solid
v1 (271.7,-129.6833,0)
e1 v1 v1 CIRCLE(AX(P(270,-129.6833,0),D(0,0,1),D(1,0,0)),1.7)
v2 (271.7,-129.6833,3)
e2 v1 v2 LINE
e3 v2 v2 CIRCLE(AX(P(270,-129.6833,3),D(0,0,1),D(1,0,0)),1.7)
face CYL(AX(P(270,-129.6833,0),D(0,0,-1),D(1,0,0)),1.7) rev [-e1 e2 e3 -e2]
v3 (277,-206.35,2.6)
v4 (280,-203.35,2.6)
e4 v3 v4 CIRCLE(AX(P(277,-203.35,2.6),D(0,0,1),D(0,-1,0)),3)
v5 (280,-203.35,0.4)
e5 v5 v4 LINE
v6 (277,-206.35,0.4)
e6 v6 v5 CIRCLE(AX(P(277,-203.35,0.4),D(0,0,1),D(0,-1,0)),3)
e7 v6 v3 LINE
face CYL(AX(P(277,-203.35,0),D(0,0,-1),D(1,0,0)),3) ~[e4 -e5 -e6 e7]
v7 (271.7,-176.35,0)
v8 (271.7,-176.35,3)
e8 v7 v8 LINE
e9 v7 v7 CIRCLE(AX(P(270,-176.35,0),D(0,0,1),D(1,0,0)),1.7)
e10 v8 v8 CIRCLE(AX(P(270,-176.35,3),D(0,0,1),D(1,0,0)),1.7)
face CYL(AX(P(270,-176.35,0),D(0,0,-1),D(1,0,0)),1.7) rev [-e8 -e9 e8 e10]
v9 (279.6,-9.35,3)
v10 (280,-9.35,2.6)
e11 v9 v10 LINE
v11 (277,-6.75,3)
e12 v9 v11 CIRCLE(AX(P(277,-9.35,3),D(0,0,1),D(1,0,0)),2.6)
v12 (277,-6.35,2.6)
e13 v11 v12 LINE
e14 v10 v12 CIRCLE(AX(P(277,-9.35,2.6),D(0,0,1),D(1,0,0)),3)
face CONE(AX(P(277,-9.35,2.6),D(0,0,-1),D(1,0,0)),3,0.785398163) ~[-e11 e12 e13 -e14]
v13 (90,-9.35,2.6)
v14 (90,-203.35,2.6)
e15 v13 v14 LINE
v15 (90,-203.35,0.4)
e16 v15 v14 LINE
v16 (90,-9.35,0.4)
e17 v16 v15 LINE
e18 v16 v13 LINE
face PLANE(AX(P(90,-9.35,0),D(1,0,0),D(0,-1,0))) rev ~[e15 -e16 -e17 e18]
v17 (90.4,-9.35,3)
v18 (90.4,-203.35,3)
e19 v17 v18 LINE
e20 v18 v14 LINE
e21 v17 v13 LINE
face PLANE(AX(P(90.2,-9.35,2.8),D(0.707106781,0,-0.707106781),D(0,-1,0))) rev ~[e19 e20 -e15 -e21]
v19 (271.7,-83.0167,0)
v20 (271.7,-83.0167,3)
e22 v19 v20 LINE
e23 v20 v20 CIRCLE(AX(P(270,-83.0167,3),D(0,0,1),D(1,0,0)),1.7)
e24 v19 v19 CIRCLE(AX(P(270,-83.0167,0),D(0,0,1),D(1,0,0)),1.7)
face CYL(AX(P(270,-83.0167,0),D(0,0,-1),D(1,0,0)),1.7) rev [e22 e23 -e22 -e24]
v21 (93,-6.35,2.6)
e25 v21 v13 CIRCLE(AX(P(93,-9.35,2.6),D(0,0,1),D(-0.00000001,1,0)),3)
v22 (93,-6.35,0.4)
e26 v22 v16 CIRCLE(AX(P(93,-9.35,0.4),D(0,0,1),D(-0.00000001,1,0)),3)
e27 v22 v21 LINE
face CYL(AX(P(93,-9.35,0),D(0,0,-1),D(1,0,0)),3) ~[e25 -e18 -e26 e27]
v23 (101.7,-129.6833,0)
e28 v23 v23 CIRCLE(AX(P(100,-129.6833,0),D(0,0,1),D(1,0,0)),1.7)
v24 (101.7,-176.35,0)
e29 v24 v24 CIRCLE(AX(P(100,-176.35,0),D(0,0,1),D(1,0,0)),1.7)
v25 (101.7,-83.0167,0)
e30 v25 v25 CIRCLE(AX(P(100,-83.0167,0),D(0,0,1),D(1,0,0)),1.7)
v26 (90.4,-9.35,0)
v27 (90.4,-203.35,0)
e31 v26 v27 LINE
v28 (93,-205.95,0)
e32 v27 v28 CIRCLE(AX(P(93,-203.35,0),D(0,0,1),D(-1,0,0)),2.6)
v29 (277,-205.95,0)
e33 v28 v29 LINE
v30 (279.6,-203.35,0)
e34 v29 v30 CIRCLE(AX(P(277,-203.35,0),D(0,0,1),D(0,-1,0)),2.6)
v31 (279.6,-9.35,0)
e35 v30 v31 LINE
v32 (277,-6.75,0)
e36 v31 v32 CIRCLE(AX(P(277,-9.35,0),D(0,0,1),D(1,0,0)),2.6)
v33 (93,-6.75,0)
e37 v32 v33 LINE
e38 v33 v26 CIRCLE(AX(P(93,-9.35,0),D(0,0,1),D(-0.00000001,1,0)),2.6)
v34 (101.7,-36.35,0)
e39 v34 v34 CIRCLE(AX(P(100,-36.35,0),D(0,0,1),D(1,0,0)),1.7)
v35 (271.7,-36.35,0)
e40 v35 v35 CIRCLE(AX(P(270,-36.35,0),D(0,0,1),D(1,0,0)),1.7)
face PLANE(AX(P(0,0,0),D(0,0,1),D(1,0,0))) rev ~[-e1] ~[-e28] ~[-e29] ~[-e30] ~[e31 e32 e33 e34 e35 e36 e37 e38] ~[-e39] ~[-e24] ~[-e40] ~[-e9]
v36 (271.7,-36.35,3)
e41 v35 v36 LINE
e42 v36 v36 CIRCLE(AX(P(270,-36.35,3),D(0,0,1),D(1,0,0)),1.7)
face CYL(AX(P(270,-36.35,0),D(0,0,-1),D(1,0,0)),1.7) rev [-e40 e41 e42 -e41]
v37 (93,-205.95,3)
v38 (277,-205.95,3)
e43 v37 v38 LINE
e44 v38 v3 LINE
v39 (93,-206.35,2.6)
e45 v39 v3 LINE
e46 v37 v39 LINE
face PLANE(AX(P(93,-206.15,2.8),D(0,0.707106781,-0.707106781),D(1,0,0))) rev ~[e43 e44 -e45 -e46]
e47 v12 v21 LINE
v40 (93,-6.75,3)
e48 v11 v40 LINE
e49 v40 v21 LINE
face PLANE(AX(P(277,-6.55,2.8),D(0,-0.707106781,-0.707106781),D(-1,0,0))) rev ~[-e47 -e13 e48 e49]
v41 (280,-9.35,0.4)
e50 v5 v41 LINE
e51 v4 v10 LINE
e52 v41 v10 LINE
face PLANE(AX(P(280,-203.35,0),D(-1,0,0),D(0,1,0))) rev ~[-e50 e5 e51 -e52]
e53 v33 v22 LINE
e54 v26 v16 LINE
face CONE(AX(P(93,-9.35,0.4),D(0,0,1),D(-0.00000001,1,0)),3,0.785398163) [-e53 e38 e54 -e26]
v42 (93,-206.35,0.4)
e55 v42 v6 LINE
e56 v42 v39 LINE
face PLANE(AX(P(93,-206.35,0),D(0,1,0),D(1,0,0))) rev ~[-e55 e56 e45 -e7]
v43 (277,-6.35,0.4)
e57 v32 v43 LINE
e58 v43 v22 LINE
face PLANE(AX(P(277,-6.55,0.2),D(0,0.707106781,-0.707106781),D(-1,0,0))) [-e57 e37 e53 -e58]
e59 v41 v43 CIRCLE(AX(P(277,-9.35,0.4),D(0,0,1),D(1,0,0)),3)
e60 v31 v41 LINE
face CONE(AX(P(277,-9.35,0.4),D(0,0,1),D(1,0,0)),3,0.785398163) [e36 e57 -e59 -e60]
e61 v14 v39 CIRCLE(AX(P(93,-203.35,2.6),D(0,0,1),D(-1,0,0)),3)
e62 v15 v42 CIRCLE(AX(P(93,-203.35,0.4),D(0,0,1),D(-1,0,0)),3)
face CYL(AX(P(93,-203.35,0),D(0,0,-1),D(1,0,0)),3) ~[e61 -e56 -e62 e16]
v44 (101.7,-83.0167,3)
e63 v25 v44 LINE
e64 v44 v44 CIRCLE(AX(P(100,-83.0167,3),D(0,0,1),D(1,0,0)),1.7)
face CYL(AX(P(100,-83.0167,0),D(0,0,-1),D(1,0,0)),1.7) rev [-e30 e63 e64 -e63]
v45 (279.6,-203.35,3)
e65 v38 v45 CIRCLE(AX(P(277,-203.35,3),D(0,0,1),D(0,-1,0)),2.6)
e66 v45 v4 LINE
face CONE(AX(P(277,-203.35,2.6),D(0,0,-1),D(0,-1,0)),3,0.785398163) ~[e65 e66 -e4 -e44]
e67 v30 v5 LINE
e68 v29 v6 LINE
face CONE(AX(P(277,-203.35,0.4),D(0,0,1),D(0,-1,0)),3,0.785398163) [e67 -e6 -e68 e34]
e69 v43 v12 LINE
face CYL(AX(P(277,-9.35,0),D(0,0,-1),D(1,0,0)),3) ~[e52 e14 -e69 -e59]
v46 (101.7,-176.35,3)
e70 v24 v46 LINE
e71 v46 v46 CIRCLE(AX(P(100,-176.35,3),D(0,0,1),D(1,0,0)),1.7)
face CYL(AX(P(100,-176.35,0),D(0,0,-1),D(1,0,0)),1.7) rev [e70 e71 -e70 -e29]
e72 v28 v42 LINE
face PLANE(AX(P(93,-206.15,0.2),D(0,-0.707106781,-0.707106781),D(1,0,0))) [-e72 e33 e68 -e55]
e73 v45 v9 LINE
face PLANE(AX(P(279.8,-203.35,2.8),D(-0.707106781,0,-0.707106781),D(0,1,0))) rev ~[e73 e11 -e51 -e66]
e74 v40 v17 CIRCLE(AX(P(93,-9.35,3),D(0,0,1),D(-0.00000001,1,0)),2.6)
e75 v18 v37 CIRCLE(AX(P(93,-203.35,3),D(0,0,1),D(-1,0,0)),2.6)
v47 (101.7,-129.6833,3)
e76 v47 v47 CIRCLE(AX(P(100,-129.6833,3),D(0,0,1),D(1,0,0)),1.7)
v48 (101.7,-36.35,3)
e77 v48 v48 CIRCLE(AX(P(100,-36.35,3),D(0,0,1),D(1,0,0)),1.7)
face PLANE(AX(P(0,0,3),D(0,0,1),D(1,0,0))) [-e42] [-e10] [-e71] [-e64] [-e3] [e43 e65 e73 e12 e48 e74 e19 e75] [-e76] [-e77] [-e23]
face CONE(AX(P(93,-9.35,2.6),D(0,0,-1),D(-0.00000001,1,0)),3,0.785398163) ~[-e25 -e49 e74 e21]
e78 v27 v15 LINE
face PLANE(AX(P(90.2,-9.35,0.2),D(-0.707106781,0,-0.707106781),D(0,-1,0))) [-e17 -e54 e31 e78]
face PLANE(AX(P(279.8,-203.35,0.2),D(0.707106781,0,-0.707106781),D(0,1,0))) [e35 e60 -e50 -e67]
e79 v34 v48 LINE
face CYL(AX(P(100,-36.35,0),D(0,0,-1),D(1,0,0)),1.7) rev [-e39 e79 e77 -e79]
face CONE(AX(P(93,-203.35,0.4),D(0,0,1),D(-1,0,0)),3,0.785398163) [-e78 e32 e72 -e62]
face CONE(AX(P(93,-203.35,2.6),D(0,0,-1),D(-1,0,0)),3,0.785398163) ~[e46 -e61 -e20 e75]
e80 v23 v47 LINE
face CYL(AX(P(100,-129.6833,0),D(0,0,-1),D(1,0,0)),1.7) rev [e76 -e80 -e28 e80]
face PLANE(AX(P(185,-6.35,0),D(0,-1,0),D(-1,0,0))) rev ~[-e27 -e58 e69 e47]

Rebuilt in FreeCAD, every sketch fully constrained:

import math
import FreeCAD as App
import Part
import Sketcher
from FreeCAD import Vector


def edges_at(feature, points):
    """Names of the edges that pass closest to the given points."""
    edges = feature.Shape.Edges
    near = lambda p: min(range(len(edges)), key=lambda i: edges[i].distToShape(Part.Vertex(*p))[0])
    return sorted({f"Edge{near(p) + 1}" for p in points})

doc = App.newDocument("Part")
body = doc.addObject("PartDesign::Body", "Body")

# Sketch on XY plane
sketch1 = doc.addObject("Sketcher::SketchObject", "Sketch")
body.addObject(sketch1)
sketch1.AttachmentSupport = (doc.XY_Plane, [""])
sketch1.MapMode = "FlatFace"
sketch1.addGeometry([
    Part.ArcOfCircle(Part.Circle(Vector(93, -9.3, 0), Vector(0, 0, 1), 3), math.radians(90), math.radians(180)),  # 0
    Part.LineSegment(Vector(90, -9.3, 0), Vector(90, -203.3, 0)),  # 1
    Part.ArcOfCircle(Part.Circle(Vector(93, -203.3, 0), Vector(0, 0, 1), 3), math.radians(180), math.radians(270)),  # 2
    Part.LineSegment(Vector(93, -206.3, 0), Vector(277, -206.3, 0)),  # 3
    Part.ArcOfCircle(Part.Circle(Vector(277, -203.3, 0), Vector(0, 0, 1), 3), math.radians(-90), math.radians(0)),  # 4
    Part.LineSegment(Vector(280, -203.3, 0), Vector(280, -9.3, 0)),  # 5
    Part.ArcOfCircle(Part.Circle(Vector(277, -9.3, 0), Vector(0, 0, 1), 3), math.radians(0), math.radians(90)),  # 6
    Part.LineSegment(Vector(277, -6.3, 0), Vector(93, -6.3, 0)),  # 7
    Part.Circle(Vector(100, -176.3, 0), Vector(0, 0, 1), 1.7),  # 8
    Part.Circle(Vector(100, -129.7, 0), Vector(0, 0, 1), 1.7),  # 9
    Part.Circle(Vector(100, -83, 0), Vector(0, 0, 1), 1.7),  # 10
    Part.Circle(Vector(100, -36.4, 0), Vector(0, 0, 1), 1.7),  # 11
    Part.Circle(Vector(270, -36.4, 0), Vector(0, 0, 1), 1.7),  # 12
    Part.Circle(Vector(270, -176.3, 0), Vector(0, 0, 1), 1.7),  # 13
    Part.Circle(Vector(270, -129.7, 0), Vector(0, 0, 1), 1.7),  # 14
    Part.Circle(Vector(270, -83, 0), Vector(0, 0, 1), 1.7),  # 15
], False)
sketch1.addConstraint([
    Sketcher.Constraint("Tangent", 0, 2, 1, 1),
    Sketcher.Constraint("Tangent", 1, 2, 2, 1),
    Sketcher.Constraint("Tangent", 2, 2, 3, 1),
    Sketcher.Constraint("Tangent", 3, 2, 4, 1),
    Sketcher.Constraint("Tangent", 4, 2, 5, 1),
    Sketcher.Constraint("Tangent", 5, 2, 6, 1),
    Sketcher.Constraint("Tangent", 6, 2, 7, 1),
    Sketcher.Constraint("Tangent", 7, 2, 0, 1),
    Sketcher.Constraint("Vertical", 1),
    Sketcher.Constraint("Horizontal", 3),
    Sketcher.Constraint("Vertical", 5),
    Sketcher.Constraint("Horizontal", 7),
    Sketcher.Constraint("Equal", 0, 2),
    Sketcher.Constraint("Equal", 2, 4),
    Sketcher.Constraint("Equal", 4, 6),
    Sketcher.Constraint("Equal", 8, 9),
    Sketcher.Constraint("Equal", 9, 10),
    Sketcher.Constraint("Equal", 10, 11),
    Sketcher.Constraint("Equal", 11, 12),
    Sketcher.Constraint("Equal", 12, 13),
    Sketcher.Constraint("Equal", 13, 14),
    Sketcher.Constraint("Equal", 14, 15),
    Sketcher.Constraint("Horizontal", 11, 3, 12, 3),
    Sketcher.Constraint("Horizontal", 8, 3, 13, 3),
    Sketcher.Constraint("Horizontal", 9, 3, 14, 3),
    Sketcher.Constraint("Horizontal", 10, 3, 15, 3),
    Sketcher.Constraint("Vertical", 8, 3, 9, 3),
    Sketcher.Constraint("Vertical", 9, 3, 10, 3),
    Sketcher.Constraint("Vertical", 10, 3, 11, 3),
    Sketcher.Constraint("Vertical", 12, 3, 13, 3),
    Sketcher.Constraint("Vertical", 13, 3, 14, 3),
    Sketcher.Constraint("Vertical", 14, 3, 15, 3),
    Sketcher.Constraint("Radius", 0, 3.0),
    Sketcher.Constraint("Diameter", 8, 3.4),
    Sketcher.Constraint("DistanceX", -1, 1, 8, 3, 100.0),
    Sketcher.Constraint("DistanceX", -1, 1, 0, 2, 90.0),
    Sketcher.Constraint("DistanceY", 2, 2, 8, 3, 30.0),
    Sketcher.Constraint("DistanceY", 12, 3, 6, 2, 30.0),
    Sketcher.Constraint("DistanceX", 3, 1, 3, 2, 184.0),
    Sketcher.Constraint("DistanceY", 1, 2, 1, 1, 194.0),
    Sketcher.Constraint("DistanceY", 6, 2, -1, 1, 6.35),
    Sketcher.Constraint("DistanceX", -1, 1, 12, 3, 270.0),
    Sketcher.Constraint("DistanceY", 8, 3, 9, 3, 46.6667),
    Sketcher.Constraint("DistanceY", 9, 3, 10, 3, 46.6666),
])
pad1 = doc.addObject("PartDesign::Pad", "Pad")
body.addObject(pad1)
pad1.Profile = sketch1
pad1.Length = 3
doc.recompute()

chamfer = doc.addObject("PartDesign::Chamfer", "Chamfer")
body.addObject(chamfer)
chamfer.Base = (pad1, edges_at(pad1, [
    (280, -106.35, 0),
    (279.121, -7.229, 0),
    (185, -6.35, 0),
    (90.879, -7.229, 0),
    (90, -106.35, 0),
    (90.879, -205.471, 0),
    (185, -206.35, 0),
    (279.121, -205.471, 0),
    (280, -106.35, 3),
    (279.121, -7.229, 3),
    (185, -6.35, 3),
    (90.879, -7.229, 3),
    (90, -106.35, 3),
    (90.879, -205.471, 3),
    (185, -206.35, 3),
    (279.121, -205.471, 3),
]))
chamfer.Size = 0.4

doc.recompute()
